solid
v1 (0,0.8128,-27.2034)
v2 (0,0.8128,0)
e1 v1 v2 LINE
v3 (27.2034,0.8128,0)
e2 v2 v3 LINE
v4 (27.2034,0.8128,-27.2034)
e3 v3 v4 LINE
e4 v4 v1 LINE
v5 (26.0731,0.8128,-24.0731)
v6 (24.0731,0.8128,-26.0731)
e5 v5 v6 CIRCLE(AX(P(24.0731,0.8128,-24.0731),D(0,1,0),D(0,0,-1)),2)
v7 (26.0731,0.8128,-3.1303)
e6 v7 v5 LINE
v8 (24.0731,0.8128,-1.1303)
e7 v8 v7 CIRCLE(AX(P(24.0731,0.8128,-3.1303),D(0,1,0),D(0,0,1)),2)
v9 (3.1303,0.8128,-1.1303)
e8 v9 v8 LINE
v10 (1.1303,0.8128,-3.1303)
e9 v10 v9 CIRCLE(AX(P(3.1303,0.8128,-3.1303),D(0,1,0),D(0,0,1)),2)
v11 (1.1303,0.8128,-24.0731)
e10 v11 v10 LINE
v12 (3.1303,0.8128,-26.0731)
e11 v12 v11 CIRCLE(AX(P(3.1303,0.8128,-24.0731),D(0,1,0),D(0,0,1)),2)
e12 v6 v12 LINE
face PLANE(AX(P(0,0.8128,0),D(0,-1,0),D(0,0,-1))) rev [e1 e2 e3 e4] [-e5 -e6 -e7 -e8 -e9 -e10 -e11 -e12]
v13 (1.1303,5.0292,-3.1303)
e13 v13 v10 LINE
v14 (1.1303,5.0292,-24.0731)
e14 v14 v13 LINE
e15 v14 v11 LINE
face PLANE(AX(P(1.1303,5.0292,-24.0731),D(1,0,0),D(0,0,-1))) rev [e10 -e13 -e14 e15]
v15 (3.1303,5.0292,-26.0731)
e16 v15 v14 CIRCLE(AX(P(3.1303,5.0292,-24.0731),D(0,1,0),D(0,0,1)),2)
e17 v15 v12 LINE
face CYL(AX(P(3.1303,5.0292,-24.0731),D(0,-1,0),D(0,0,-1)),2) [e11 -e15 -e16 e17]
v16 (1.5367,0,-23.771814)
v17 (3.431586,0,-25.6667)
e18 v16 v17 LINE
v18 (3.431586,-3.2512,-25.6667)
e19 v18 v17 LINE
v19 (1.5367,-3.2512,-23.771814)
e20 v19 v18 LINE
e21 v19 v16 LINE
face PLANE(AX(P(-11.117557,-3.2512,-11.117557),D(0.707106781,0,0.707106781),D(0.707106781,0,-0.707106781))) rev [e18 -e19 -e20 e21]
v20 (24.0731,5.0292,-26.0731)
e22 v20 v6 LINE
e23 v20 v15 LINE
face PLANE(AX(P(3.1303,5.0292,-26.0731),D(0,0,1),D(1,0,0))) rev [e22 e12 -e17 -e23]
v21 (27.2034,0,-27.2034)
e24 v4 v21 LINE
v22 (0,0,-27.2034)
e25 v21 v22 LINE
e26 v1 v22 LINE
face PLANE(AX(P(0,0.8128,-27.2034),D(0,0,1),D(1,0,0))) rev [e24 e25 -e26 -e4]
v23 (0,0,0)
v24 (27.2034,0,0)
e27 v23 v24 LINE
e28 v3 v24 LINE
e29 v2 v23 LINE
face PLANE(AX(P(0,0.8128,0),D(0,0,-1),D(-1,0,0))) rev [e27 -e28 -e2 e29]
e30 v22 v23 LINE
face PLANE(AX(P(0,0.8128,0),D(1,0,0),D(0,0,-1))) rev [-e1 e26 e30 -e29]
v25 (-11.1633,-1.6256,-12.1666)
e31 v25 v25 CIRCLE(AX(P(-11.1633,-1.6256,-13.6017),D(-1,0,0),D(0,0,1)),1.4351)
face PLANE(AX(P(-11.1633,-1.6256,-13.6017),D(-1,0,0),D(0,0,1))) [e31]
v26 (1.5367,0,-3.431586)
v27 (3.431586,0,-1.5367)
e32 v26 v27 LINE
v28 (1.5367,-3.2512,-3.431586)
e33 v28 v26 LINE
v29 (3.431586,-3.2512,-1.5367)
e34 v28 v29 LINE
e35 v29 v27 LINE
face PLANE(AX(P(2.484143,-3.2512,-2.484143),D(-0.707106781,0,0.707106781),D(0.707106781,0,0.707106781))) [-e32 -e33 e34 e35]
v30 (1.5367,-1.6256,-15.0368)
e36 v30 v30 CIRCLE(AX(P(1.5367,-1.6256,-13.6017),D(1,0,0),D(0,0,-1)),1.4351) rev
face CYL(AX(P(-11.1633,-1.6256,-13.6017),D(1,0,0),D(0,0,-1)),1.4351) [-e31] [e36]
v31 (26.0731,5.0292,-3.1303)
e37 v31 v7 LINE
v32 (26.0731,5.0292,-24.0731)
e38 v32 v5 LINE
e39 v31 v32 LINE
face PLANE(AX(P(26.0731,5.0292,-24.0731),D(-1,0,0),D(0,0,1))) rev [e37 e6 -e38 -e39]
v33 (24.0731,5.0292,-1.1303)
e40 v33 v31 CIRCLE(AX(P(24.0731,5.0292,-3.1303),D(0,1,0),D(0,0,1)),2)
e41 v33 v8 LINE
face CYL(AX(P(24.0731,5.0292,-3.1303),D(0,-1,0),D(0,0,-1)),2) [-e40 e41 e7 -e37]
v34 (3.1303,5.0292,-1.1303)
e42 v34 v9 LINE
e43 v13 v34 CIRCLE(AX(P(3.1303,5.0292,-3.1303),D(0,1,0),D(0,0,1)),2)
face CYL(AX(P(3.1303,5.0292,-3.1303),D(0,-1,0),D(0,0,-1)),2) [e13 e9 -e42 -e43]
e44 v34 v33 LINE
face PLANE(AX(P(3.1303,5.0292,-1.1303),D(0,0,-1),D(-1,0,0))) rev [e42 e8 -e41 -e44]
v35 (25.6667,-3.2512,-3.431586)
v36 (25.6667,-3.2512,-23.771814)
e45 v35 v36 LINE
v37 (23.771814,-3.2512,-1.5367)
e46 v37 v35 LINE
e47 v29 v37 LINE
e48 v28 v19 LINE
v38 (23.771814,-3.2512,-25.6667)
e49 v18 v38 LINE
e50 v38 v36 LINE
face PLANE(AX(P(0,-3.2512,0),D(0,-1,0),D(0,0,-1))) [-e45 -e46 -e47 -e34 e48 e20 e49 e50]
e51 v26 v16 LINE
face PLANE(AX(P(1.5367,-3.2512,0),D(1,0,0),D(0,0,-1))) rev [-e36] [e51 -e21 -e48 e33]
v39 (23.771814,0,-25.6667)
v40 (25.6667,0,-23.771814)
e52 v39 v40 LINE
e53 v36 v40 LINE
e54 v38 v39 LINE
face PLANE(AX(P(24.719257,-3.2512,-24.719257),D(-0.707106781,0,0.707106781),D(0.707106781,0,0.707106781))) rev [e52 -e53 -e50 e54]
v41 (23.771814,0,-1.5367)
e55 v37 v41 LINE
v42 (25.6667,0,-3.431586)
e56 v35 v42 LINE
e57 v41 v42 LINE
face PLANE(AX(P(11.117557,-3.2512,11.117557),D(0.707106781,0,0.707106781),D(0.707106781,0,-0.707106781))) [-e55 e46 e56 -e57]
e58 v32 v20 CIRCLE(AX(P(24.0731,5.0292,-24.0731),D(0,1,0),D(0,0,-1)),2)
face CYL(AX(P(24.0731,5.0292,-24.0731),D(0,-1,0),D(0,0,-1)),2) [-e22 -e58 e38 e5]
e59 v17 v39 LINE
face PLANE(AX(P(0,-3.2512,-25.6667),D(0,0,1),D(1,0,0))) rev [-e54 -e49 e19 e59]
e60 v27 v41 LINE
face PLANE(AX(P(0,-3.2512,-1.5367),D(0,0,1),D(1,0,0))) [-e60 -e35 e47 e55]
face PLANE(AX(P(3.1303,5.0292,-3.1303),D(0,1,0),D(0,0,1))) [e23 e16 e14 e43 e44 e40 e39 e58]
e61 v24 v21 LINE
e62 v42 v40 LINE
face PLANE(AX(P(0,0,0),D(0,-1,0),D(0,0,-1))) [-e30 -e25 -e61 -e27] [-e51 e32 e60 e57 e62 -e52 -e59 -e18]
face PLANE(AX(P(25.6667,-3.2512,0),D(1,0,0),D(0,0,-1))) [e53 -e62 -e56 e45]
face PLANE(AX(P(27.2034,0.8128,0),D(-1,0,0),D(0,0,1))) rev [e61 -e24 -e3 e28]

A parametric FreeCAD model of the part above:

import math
import FreeCAD as App
import Part
import Sketcher

V = App.Vector
Q = App.Units.Quantity

doc = App.newDocument("Part")
body = doc.addObject("PartDesign::Body", "Body")

sketch1 = body.newObject("Sketcher::SketchObject", "Sketch")
sketch1.AttachmentSupport = (doc.getObject("XZ_Plane"), [""])
sketch1.MapMode = "FlatFace"
sketch1.addGeometry([
    Part.LineSegment(V(0, -27.2034, 0), V(0, 0, 0)),
    Part.LineSegment(V(0, 0, 0), V(27.2034, 0, 0)),
    Part.LineSegment(V(27.2034, 0, 0), V(27.2034, -27.2034, 0)),
    Part.LineSegment(V(27.2034, -27.2034, 0), V(0, -27.2034, 0)),
], False)
sketch1.addConstraint([
    Sketcher.Constraint("Coincident", 0, 2, 1, 1),
    Sketcher.Constraint("Coincident", 1, 2, 2, 1),
    Sketcher.Constraint("Coincident", 2, 2, 3, 1),
    Sketcher.Constraint("Coincident", 3, 2, 0, 1),
    Sketcher.Constraint("Vertical", 0),
    Sketcher.Constraint("Horizontal", 1),
    Sketcher.Constraint("Vertical", 2),
    Sketcher.Constraint("Horizontal", 3),
    Sketcher.Constraint("Coincident", 0, 2, -1, 1),
    Sketcher.Constraint("Equal", 3, 0),
    Sketcher.Constraint("DistanceX", 1, 1, 1, 2, Q("1.071 in")),
])
pad1 = body.newObject("PartDesign::Pad", "Pad")
pad1.Profile = sketch1
pad1.Length = Q("0.032 in")
pad1.Reversed = True

sketch2 = body.newObject("Sketcher::SketchObject", "Sketch001")
sketch2.AttachmentSupport = (doc.getObject("XZ_Plane"), [""])
sketch2.MapMode = "FlatFace"
sketch2.AttachmentOffset = App.Placement(V(0, 0, -0.032 * 25.4), App.Rotation())
sketch2.addGeometry([
    Part.LineSegment(V(24.0731, -26.0731, 0), V(3.1303, -26.0731, 0)),
    Part.ArcOfCircle(Part.Circle(V(3.1303, -24.0731, 0), V(0, 0, 1), 2), math.radians(-180), math.radians(-90)),
    Part.LineSegment(V(1.1303, -24.0731, 0), V(1.1303, -3.1303, 0)),
    Part.ArcOfCircle(Part.Circle(V(3.1303, -3.1303, 0), V(0, 0, 1), 2), math.radians(90), math.radians(180)),
    Part.LineSegment(V(3.1303, -1.1303, 0), V(24.0731, -1.1303, 0)),
    Part.ArcOfCircle(Part.Circle(V(24.0731, -3.1303, 0), V(0, 0, 1), 2), math.radians(0), math.radians(90)),
    Part.LineSegment(V(26.0731, -3.1303, 0), V(26.0731, -24.0731, 0)),
    Part.ArcOfCircle(Part.Circle(V(24.0731, -24.0731, 0), V(0, 0, 1), 2), math.radians(-90), math.radians(0)),
], False)
sketch2.addConstraint([
    Sketcher.Constraint("Tangent", 0, 2, 1, 2),
    Sketcher.Constraint("Tangent", 1, 1, 2, 1),
    Sketcher.Constraint("Tangent", 2, 2, 3, 2),
    Sketcher.Constraint("Tangent", 3, 1, 4, 1),
    Sketcher.Constraint("Tangent", 4, 2, 5, 2),
    Sketcher.Constraint("Tangent", 5, 1, 6, 1),
    Sketcher.Constraint("Tangent", 6, 2, 7, 2),
    Sketcher.Constraint("Tangent", 7, 1, 0, 1),
    Sketcher.Constraint("Horizontal", 0),
    Sketcher.Constraint("Vertical", 2),
    Sketcher.Constraint("Horizontal", 4),
    Sketcher.Constraint("Vertical", 6),
    Sketcher.Constraint("Equal", 1, 3),
    Sketcher.Constraint("Equal", 3, 5),
    Sketcher.Constraint("Equal", 5, 7),
    Sketcher.Constraint("Equal", 4, 2),
    Sketcher.Constraint("Radius", 1, 2.0),
    Sketcher.Constraint("DistanceX", 0, 2, 0, 1, 20.9428),
    Sketcher.Constraint("DistanceY", 0, 2, -1, 1, Q("1.0265 in")),
    Sketcher.Constraint("DistanceX", -1, 1, 1, 1, Q("0.0445 in")),
])
pad2 = body.newObject("PartDesign::Pad", "Pad001")
pad2.Profile = sketch2
pad2.Length = Q("0.166 in")
pad2.Reversed = True

sketch3 = body.newObject("Sketcher::SketchObject", "Sketch002")
sketch3.AttachmentSupport = (doc.getObject("XZ_Plane"), [""])
sketch3.MapMode = "FlatFace"
sketch3.addGeometry([
    Part.LineSegment(V(23.771814, -1.5367, 0), V(3.431586, -1.5367, 0)),
    Part.LineSegment(V(3.431586, -1.5367, 0), V(1.5367, -3.431586, 0)),
    Part.LineSegment(V(1.5367, -3.431586, 0), V(1.5367, -23.771814, 0)),
    Part.LineSegment(V(1.5367, -23.771814, 0), V(3.431586, -25.6667, 0)),
    Part.LineSegment(V(3.431586, -25.6667, 0), V(23.771814, -25.6667, 0)),
    Part.LineSegment(V(23.771814, -25.6667, 0), V(25.6667, -23.771814, 0)),
    Part.LineSegment(V(25.6667, -23.771814, 0), V(25.6667, -3.431586, 0)),
    Part.LineSegment(V(25.6667, -3.431586, 0), V(23.771814, -1.5367, 0)),
], False)
sketch3.addConstraint([
    Sketcher.Constraint("Coincident", 0, 2, 1, 1),
    Sketcher.Constraint("Coincident", 1, 2, 2, 1),
    Sketcher.Constraint("Coincident", 2, 2, 3, 1),
    Sketcher.Constraint("Coincident", 3, 2, 4, 1),
    Sketcher.Constraint("Coincident", 4, 2, 5, 1),
    Sketcher.Constraint("Coincident", 5, 2, 6, 1),
    Sketcher.Constraint("Coincident", 6, 2, 7, 1),
    Sketcher.Constraint("Coincident", 7, 2, 0, 1),
    Sketcher.Constraint("Horizontal", 0),
    Sketcher.Constraint("Vertical", 2),
    Sketcher.Constraint("Horizontal", 4),
    Sketcher.Constraint("Vertical", 6),
    Sketcher.Constraint("Perpendicular", 1, 3),
    Sketcher.Constraint("Perpendicular", 3, 5),
    Sketcher.Constraint("Perpendicular", 5, 7),
    Sketcher.Constraint("Horizontal", 2, 2, 5, 2),
    Sketcher.Constraint("Horizontal", 1, 2, 6, 2),
    Sketcher.Constraint("Vertical", 0, 2, 3, 2),
    Sketcher.Constraint("Vertical", 4, 2, 7, 2),
    Sketcher.Constraint("Equal", 4, 2),
    Sketcher.Constraint("DistanceY", 3, 2, 0, 2, Q("0.95 in")),
    Sketcher.Constraint("DistanceY", 0, 2, -1, 1, Q("0.0605 in")),
    Sketcher.Constraint("DistanceX", -1, 1, 1, 2, Q("0.0605 in")),
    Sketcher.Constraint("DistanceX", 0, 2, 0, 1, 20.340228),
])
pad3 = body.newObject("PartDesign::Pad", "Pad002")
pad3.Profile = sketch3
pad3.Length = Q("0.128 in")

sketch4 = body.newObject("Sketcher::SketchObject", "Sketch003")
sketch4.AttachmentSupport = (doc.getObject("YZ_Plane"), [""])
sketch4.MapMode = "FlatFace"
sketch4.AttachmentOffset = App.Placement(V(0, 0, 0.0605 * 25.4), App.Rotation())
sketch4.addGeometry(Part.Circle(V(-1.6256, -13.6017, 0), V(0, 0, 1), 1.4351), False)
sketch4.addConstraint([
    Sketcher.Constraint("Diameter", 0, Q("0.113 in")),
    Sketcher.Constraint("DistanceX", 0, 3, -1, 1, Q("0.064 in")),
    Sketcher.Constraint("DistanceY", 0, 3, -1, 1, Q("0.5355 in")),
])
pad4 = body.newObject("PartDesign::Pad", "Pad003")
pad4.Profile = sketch4
pad4.Length = Q("0.5 in")
pad4.Reversed = True

doc.recompute()
